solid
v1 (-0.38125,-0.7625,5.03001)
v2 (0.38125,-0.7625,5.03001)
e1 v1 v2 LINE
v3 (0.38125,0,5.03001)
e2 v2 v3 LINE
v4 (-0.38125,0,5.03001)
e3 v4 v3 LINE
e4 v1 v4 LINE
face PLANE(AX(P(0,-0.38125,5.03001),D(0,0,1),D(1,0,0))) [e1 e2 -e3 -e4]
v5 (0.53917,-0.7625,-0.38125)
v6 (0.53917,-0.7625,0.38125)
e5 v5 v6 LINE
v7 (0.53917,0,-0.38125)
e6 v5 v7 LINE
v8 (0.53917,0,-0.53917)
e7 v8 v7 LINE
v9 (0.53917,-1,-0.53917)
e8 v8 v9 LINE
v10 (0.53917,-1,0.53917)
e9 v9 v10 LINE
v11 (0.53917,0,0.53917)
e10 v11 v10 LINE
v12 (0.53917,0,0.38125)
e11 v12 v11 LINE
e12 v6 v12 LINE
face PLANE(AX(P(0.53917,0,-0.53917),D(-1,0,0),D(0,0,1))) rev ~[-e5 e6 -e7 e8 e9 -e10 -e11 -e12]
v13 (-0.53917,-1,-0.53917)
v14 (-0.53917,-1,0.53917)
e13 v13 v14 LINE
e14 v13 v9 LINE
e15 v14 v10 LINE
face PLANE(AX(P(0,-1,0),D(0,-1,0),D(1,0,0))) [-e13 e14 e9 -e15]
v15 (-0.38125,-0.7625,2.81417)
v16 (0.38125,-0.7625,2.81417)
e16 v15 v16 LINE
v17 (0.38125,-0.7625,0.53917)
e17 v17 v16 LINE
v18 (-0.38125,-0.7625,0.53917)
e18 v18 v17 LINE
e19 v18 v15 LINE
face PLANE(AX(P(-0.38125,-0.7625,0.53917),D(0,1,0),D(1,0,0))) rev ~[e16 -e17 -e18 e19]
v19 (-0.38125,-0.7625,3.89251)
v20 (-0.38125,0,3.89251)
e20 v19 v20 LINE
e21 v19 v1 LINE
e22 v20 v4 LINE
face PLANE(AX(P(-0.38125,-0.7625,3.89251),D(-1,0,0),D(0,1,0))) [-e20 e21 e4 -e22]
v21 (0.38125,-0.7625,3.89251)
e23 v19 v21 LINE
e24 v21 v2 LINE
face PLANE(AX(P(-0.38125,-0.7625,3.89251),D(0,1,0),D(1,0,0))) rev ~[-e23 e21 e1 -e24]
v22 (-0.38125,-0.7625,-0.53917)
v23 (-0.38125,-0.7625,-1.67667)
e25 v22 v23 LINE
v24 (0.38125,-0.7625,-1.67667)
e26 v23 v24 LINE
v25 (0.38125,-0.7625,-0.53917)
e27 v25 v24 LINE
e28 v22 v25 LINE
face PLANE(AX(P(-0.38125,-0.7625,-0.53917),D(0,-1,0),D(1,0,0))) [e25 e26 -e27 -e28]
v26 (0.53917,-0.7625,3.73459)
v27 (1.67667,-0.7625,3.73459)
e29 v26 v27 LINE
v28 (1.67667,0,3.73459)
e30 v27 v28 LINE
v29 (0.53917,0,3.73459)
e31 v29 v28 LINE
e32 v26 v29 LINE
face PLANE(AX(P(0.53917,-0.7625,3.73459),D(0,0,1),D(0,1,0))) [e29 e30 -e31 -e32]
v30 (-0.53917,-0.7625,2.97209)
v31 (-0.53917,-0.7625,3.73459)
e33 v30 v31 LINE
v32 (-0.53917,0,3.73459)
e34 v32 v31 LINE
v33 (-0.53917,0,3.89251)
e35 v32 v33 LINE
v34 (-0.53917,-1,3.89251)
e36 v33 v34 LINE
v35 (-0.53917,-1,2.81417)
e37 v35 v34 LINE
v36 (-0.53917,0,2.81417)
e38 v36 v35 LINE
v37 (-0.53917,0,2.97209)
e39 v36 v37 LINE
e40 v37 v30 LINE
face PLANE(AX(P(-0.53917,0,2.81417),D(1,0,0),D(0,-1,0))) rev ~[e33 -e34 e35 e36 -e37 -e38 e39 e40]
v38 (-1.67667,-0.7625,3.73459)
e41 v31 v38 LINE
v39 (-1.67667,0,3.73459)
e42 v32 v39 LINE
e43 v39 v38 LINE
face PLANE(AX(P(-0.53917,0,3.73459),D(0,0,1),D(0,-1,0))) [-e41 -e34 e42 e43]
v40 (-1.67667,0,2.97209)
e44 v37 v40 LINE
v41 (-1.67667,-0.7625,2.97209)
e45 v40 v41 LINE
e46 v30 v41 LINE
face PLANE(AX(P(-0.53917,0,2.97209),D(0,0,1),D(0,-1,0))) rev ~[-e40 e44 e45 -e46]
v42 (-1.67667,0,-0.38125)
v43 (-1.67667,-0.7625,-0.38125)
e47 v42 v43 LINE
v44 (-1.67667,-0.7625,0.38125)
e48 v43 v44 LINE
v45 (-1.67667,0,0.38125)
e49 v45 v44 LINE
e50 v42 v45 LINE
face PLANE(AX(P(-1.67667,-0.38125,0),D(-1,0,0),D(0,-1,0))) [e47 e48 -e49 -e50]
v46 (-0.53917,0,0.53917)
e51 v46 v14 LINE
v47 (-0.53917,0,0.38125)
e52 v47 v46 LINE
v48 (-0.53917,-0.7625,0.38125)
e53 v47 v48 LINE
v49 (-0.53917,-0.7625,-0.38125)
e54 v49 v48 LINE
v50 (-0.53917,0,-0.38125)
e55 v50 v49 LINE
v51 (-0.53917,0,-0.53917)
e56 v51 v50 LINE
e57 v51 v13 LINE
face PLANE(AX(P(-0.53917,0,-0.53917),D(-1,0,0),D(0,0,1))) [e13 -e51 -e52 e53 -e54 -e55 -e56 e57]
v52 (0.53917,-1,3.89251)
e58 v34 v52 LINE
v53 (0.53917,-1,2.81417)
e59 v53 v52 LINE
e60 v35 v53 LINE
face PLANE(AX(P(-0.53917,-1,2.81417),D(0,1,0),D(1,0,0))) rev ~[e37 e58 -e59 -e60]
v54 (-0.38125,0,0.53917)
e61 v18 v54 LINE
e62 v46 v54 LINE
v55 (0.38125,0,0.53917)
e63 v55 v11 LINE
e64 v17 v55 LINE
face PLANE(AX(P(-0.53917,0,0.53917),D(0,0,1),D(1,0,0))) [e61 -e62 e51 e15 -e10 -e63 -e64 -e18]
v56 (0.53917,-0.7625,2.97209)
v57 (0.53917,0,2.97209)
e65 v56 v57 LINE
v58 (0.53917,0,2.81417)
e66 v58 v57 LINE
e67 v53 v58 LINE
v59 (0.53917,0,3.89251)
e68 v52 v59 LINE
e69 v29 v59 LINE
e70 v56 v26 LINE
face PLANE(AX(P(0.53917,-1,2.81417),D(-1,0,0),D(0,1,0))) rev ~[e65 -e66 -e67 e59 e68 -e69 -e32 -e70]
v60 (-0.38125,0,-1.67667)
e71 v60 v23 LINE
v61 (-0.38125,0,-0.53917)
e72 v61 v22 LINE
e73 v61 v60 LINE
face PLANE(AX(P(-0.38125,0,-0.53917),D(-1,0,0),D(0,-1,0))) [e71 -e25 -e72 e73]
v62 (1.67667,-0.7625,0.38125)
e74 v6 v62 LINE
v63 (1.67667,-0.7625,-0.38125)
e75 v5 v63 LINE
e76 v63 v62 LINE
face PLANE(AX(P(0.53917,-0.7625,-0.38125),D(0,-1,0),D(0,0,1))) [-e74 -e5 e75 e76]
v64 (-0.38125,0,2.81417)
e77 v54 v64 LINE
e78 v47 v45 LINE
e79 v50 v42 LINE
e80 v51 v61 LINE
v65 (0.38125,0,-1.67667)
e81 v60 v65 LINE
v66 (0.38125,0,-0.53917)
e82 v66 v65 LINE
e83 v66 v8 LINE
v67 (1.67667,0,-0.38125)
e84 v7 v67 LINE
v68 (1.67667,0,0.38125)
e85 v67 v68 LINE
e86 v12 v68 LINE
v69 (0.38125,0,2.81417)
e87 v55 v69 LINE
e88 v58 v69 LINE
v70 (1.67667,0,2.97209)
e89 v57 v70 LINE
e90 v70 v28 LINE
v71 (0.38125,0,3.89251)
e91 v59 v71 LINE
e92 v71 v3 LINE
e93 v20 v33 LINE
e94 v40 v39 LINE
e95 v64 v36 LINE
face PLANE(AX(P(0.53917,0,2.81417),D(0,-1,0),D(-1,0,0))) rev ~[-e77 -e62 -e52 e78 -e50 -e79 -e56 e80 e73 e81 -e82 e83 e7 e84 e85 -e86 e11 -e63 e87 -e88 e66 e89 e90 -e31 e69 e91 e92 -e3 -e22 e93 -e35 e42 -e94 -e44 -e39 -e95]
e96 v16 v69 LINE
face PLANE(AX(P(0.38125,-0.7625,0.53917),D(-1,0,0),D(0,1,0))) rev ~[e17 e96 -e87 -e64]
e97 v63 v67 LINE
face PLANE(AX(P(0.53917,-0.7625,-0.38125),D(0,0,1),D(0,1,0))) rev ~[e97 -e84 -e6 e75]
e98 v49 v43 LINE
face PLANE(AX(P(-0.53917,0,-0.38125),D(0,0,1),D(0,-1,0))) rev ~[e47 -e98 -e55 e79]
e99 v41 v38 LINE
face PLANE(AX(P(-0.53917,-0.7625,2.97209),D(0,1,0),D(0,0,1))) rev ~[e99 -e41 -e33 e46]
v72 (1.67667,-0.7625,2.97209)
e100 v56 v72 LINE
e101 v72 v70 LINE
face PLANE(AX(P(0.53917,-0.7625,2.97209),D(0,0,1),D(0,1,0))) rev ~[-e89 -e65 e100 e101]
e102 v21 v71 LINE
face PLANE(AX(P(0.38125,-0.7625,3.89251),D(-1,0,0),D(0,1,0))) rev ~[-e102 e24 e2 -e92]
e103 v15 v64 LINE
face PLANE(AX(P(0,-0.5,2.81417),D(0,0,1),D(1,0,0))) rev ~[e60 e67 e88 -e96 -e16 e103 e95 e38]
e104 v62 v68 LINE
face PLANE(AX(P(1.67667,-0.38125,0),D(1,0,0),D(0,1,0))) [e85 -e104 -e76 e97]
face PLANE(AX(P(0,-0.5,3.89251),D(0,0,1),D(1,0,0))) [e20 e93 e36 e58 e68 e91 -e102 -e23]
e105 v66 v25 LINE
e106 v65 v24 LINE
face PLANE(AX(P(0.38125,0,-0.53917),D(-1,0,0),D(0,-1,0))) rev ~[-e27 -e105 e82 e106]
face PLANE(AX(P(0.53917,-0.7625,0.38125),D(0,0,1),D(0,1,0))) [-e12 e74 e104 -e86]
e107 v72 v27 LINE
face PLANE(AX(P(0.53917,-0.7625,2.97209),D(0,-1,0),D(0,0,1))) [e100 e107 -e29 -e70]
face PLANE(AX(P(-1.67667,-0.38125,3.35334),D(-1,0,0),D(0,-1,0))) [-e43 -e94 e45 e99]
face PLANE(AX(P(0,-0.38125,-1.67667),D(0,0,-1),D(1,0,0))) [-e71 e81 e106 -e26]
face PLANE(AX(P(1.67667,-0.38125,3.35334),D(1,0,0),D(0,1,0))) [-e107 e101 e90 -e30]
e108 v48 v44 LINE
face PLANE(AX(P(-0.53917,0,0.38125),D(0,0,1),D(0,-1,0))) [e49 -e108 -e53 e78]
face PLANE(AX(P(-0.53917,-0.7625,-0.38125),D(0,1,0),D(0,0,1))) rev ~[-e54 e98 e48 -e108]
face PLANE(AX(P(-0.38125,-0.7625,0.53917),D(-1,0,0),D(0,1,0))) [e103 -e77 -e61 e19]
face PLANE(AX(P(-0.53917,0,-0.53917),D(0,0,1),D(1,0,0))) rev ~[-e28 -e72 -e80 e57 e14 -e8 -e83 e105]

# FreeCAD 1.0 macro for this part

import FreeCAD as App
import Part
import Sketcher
from FreeCAD import Vector
Q = App.Units.Quantity


def add_polygon(sketch, points):
    """Adds a closed chain of lines whose ends are joined by coincident constraints."""
    first, n = sketch.GeometryCount, len(points)
    for a, b in zip(points, points[1:] + points[:1]):
        sketch.addGeometry(Part.LineSegment(App.Vector(*a, 0), App.Vector(*b, 0)), False)
    for i in range(n):
        sketch.addConstraint(Sketcher.Constraint("Coincident", first + i, 2, first + (i + 1) % n, 1))

doc = App.newDocument("Part")
body = doc.addObject("PartDesign::Body", "Body")

# Sketch on XZ plane
sketch1 = body.newObject("Sketcher::SketchObject", "Sketch")
sketch1.AttachmentSupport = (doc.getObject("XZ_Plane"), [""])
sketch1.MapMode = "FlatFace"
add_polygon(sketch1, [(-0.5, 0.5), (-0.5, -0.5), (0.5, -0.5), (0.5, 0.5)])  # lines 0-3
sketch1.addConstraint([
    Sketcher.Constraint("Vertical", 0),
    Sketcher.Constraint("Horizontal", 1),
    Sketcher.Constraint("Vertical", 2),
    Sketcher.Constraint("Horizontal", 3),
    Sketcher.Constraint("Symmetric", 0, 2, 2, 2, -1, 1),
    Sketcher.Constraint("Equal", 3, 0),
    Sketcher.Constraint("DistanceX", 1, 1, 1, 2, Q("1.07834 mm")),
])
pad1 = body.newObject("PartDesign::Pad", "Pad")
pad1.Profile = sketch1
pad1.Length = 1

# Sketch on XY plane
sketch2 = body.newObject("Sketcher::SketchObject", "Sketch001")
sketch2.AttachmentSupport = (doc.getObject("XY_Plane"), [""])
sketch2.MapMode = "FlatFace"
sketch2.AttachmentOffset = App.Placement(Vector(0, 0, -0.53917), App.Rotation())
add_polygon(sketch2, [(-0.4, -0.8), (-0.4, 0), (0.4, 0), (0.4, -0.8)])  # lines 0-3
sketch2.addConstraint([
    Sketcher.Constraint("Vertical", 0),
    Sketcher.Constraint("Horizontal", 1),
    Sketcher.Constraint("Vertical", 2),
    Sketcher.Constraint("Horizontal", 3),
    Sketcher.Constraint("Symmetric", 0, 2, 1, 2, -1, 1),
    Sketcher.Constraint("Equal", 3, 0),
    Sketcher.Constraint("DistanceX", 1, 1, 1, 2, Q("0.7625 mm")),
])
pad2 = body.newObject("PartDesign::Pad", "Pad001")
pad2.Profile = sketch2
pad2.Length = 1.1375
pad2.Reversed = True

# Sketch on YZ plane
sketch3 = body.newObject("Sketcher::SketchObject", "Sketch002")
sketch3.AttachmentSupport = (doc.getObject("YZ_Plane"), [""])
sketch3.MapMode = "FlatFace"
sketch3.AttachmentOffset = App.Placement(Vector(0, 0, -0.53917), App.Rotation())
add_polygon(sketch3, [(0, 0.4), (0, -0.4), (-0.8, -0.4), (-0.8, 0.4)])  # lines 0-3
sketch3.addConstraint([
    Sketcher.Constraint("Vertical", 0),
    Sketcher.Constraint("Horizontal", 1),
    Sketcher.Constraint("Vertical", 2),
    Sketcher.Constraint("Horizontal", 3),
    Sketcher.Constraint("Symmetric", 0, 2, 3, 2, -1, 1),
    Sketcher.Constraint("Equal", 3, 0),
    Sketcher.Constraint("DistanceX", 1, 2, 1, 1, Q("0.7625 mm")),
])
pad3 = body.newObject("PartDesign::Pad", "Pad002")
pad3.Profile = sketch3
pad3.Length = 1.1375
pad3.Reversed = True

# Sketch on YZ plane
sketch4 = body.newObject("Sketcher::SketchObject", "Sketch003")
sketch4.AttachmentSupport = (doc.getObject("YZ_Plane"), [""])
sketch4.MapMode = "FlatFace"
sketch4.AttachmentOffset = App.Placement(Vector(0, 0, 0.53917), App.Rotation())
add_polygon(sketch4, [(-0.8, 0.4), (-0.8, -0.4), (0, -0.4), (0, 0.4)])  # lines 0-3
sketch4.addConstraint([
    Sketcher.Constraint("Vertical", 0),
    Sketcher.Constraint("Horizontal", 1),
    Sketcher.Constraint("Vertical", 2),
    Sketcher.Constraint("Horizontal", 3),
    Sketcher.Constraint("Symmetric", 1, 2, 2, 2, -1, 1),
    Sketcher.Constraint("Equal", 3, 0),
    Sketcher.Constraint("DistanceX", 1, 1, 1, 2, Q("0.7625 mm")),
])
pad4 = body.newObject("PartDesign::Pad", "Pad003")
pad4.Profile = sketch4
pad4.Length = 1.1375

# Sketch on XY plane
sketch5 = body.newObject("Sketcher::SketchObject", "Sketch004")
sketch5.AttachmentSupport = (doc.getObject("XY_Plane"), [""])
sketch5.MapMode = "FlatFace"
sketch5.AttachmentOffset = App.Placement(Vector(0, 0, 0.53917), App.Rotation())
add_polygon(sketch5, [(-0.4, 0), (-0.4, -0.8), (0.4, -0.8), (0.4, 0)])  # lines 0-3
sketch5.addConstraint([
    Sketcher.Constraint("Vertical", 0),
    Sketcher.Constraint("Horizontal", 1),
    Sketcher.Constraint("Vertical", 2),
    Sketcher.Constraint("Horizontal", 3),
    Sketcher.Constraint("Symmetric", 2, 2, 3, 2, -1, 1),
    Sketcher.Constraint("Equal", 3, 0),
    Sketcher.Constraint("DistanceX", 1, 1, 1, 2, Q("0.7625 mm")),
])
pad5 = body.newObject("PartDesign::Pad", "Pad004")
pad5.Profile = sketch5
pad5.Length = 2.275

# Sketch on XY plane
sketch6 = body.newObject("Sketcher::SketchObject", "Sketch005")
sketch6.AttachmentSupport = (doc.getObject("XY_Plane"), [""])
sketch6.MapMode = "FlatFace"
sketch6.AttachmentOffset = App.Placement(Vector(0, 0, 2.81417), App.Rotation())
add_polygon(sketch6, [(0.5, 0), (-0.5, 0), (-0.5, -1), (0.5, -1)])  # lines 0-3
sketch6.addConstraint([
    Sketcher.Constraint("Horizontal", 0),
    Sketcher.Constraint("Vertical", 1),
    Sketcher.Constraint("Horizontal", 2),
    Sketcher.Constraint("Vertical", 3),
    Sketcher.Constraint("Symmetric", 0, 2, 3, 2, -1, 1),
    Sketcher.Constraint("DistanceY", 1, 2, 1, 1, Q("1 mm")),
    Sketcher.Constraint("DistanceX", 0, 2, 0, 1, Q("1.07834 mm")),
])
pad6 = body.newObject("PartDesign::Pad", "Pad005")
pad6.Profile = sketch6
pad6.Length = 1.07834

# Sketch on YZ plane
sketch7 = body.newObject("Sketcher::SketchObject", "Sketch006")
sketch7.AttachmentSupport = (doc.getObject("YZ_Plane"), [""])
sketch7.MapMode = "FlatFace"
sketch7.AttachmentOffset = App.Placement(Vector(0, 0, 0.53917), App.Rotation())
add_polygon(sketch7, [(-0.8, 3.7), (-0.8, 3), (0, 3), (0, 3.7)])  # lines 0-3
sketch7.addConstraint([
    Sketcher.Constraint("Vertical", 0),
    Sketcher.Constraint("Horizontal", 1),
    Sketcher.Constraint("Vertical", 2),
    Sketcher.Constraint("Horizontal", 3),
    Sketcher.Constraint("PointOnObject", 1, 2, -2),
    Sketcher.Constraint("Equal", 3, 0),
    Sketcher.Constraint("DistanceX", 1, 1, 1, 2, Q("0.7625 mm")),
    Sketcher.Constraint("DistanceY", -1, 1, 0, 2, Q("2.97209 mm")),
])
pad7 = body.newObject("PartDesign::Pad", "Pad006")
pad7.Profile = sketch7
pad7.Length = 1.1375

# Sketch on XY plane
sketch8 = body.newObject("Sketcher::SketchObject", "Sketch007")
sketch8.AttachmentSupport = (doc.getObject("XY_Plane"), [""])
sketch8.MapMode = "FlatFace"
sketch8.AttachmentOffset = App.Placement(Vector(0, 0, 3.89251), App.Rotation())
add_polygon(sketch8, [(-0.4, 0), (-0.4, -0.8), (0.4, -0.8), (0.4, 0)])  # lines 0-3
sketch8.addConstraint([
    Sketcher.Constraint("Vertical", 0),
    Sketcher.Constraint("Horizontal", 1),
    Sketcher.Constraint("Vertical", 2),
    Sketcher.Constraint("Horizontal", 3),
    Sketcher.Constraint("Symmetric", 2, 2, 3, 2, -1, 1),
    Sketcher.Constraint("Equal", 3, 0),
    Sketcher.Constraint("DistanceX", 1, 1, 1, 2, Q("0.7625 mm")),
])
pad8 = body.newObject("PartDesign::Pad", "Pad007")
pad8.Profile = sketch8
pad8.Length = 1.1375

# Sketch on YZ plane
sketch9 = body.newObject("Sketcher::SketchObject", "Sketch008")
sketch9.AttachmentSupport = (doc.getObject("YZ_Plane"), [""])
sketch9.MapMode = "FlatFace"
sketch9.AttachmentOffset = App.Placement(Vector(0, 0, -0.53917), App.Rotation())
add_polygon(sketch9, [(0, 3.7), (0, 3), (-0.8, 3), (-0.8, 3.7)])  # lines 0-3
sketch9.addConstraint([
    Sketcher.Constraint("Vertical", 0),
    Sketcher.Constraint("Horizontal", 1),
    Sketcher.Constraint("Vertical", 2),
    Sketcher.Constraint("Horizontal", 3),
    Sketcher.Constraint("PointOnObject", 0, 2, -2),
    Sketcher.Constraint("Equal", 3, 0),
    Sketcher.Constraint("DistanceX", 1, 2, 1, 1, Q("0.7625 mm")),
    Sketcher.Constraint("DistanceY", -1, 1, 0, 2, Q("2.97209 mm")),
])
pad9 = body.newObject("PartDesign::Pad", "Pad008")
pad9.Profile = sketch9
pad9.Length = 1.1375
pad9.Reversed = True

doc.recompute()
